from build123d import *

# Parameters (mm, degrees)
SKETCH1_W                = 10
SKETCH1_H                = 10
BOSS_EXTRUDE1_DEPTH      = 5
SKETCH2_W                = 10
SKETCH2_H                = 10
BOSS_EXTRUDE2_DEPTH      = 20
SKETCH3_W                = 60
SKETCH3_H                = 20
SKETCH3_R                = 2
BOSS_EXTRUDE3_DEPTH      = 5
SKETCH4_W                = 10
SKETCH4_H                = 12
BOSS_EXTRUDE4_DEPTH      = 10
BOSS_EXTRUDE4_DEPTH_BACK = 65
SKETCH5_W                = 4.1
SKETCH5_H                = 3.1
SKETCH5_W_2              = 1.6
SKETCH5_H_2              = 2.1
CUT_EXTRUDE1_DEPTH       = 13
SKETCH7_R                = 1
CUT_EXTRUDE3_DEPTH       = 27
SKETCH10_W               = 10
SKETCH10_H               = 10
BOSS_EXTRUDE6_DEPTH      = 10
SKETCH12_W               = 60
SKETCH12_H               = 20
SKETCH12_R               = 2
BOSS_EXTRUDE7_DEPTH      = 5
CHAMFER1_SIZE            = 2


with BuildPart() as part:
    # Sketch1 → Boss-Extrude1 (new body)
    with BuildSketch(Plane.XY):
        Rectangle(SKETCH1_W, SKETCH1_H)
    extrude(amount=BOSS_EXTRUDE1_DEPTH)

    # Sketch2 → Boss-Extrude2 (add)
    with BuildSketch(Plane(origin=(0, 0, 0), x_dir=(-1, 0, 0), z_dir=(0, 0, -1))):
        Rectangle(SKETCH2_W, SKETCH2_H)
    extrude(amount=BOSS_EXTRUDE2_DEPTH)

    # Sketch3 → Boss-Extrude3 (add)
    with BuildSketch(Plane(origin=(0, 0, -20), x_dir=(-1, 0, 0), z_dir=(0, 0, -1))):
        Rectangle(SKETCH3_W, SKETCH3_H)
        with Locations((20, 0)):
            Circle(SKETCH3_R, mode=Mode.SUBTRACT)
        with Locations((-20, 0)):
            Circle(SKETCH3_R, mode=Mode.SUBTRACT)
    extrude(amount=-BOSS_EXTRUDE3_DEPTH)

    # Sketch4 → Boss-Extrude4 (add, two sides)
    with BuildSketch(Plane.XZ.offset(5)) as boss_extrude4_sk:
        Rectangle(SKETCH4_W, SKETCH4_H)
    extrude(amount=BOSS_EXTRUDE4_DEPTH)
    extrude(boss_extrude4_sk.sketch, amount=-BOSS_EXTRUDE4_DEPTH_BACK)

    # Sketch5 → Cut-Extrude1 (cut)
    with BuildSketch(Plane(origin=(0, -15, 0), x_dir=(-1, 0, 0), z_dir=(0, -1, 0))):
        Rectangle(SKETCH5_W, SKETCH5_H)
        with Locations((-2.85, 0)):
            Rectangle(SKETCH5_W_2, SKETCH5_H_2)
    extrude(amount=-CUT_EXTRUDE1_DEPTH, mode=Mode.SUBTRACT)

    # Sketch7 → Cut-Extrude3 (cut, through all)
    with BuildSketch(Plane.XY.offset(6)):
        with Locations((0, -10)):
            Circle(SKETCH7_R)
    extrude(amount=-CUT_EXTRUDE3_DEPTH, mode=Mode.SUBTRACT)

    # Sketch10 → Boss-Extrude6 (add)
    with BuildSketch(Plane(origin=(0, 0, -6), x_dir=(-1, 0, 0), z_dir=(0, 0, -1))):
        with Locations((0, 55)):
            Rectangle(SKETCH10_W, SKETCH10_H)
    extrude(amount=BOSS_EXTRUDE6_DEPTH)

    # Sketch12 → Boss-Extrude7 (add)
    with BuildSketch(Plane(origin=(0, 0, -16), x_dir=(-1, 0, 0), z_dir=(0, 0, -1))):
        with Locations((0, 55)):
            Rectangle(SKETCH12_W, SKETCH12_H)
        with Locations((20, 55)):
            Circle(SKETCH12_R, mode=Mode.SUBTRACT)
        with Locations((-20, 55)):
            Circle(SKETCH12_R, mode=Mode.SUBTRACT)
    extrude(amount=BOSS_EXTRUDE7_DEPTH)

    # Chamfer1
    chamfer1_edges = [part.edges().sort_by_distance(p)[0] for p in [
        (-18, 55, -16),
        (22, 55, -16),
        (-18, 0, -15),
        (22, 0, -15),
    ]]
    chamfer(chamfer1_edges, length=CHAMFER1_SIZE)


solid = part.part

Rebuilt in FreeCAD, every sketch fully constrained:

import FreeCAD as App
import Part
import Sketcher

V = App.Vector
Q = App.Units.Quantity


def edges_at(feature, points):
    """Names of the edges that pass closest to the given points."""
    edges = feature.Shape.Edges
    near = lambda p: min(range(len(edges)), key=lambda i: edges[i].distToShape(Part.Vertex(*p))[0])
    return sorted({f"Edge{near(p) + 1}" for p in points})


def add_polygon(sketch, points):
    """Adds a closed chain of lines whose ends are joined by coincident constraints."""
    first, n = sketch.GeometryCount, len(points)
    for a, b in zip(points, points[1:] + points[:1]):
        sketch.addGeometry(Part.LineSegment(App.Vector(*a, 0), App.Vector(*b, 0)), False)
    for i in range(n):
        sketch.addConstraint(Sketcher.Constraint("Coincident", first + i, 2, first + (i + 1) % n, 1))

doc = App.newDocument("Part")
body = doc.addObject("PartDesign::Body", "Body")

# Sketch on XY plane
sketch1 = body.newObject("Sketcher::SketchObject", "Sketch")
sketch1.AttachmentSupport = (doc.getObject("XY_Plane"), [""])
sketch1.MapMode = "FlatFace"
add_polygon(sketch1, [(-5, 5), (-5, -5), (5, -5), (5, 5)])  # lines 0-3
sketch1.addConstraint(Sketcher.Constraint("Vertical", 0))
sketch1.addConstraint(Sketcher.Constraint("Horizontal", 1))
sketch1.addConstraint(Sketcher.Constraint("Vertical", 2))
sketch1.addConstraint(Sketcher.Constraint("Horizontal", 3))
sketch1.addConstraint(Sketcher.Constraint("Symmetric", 0, 2, 2, 2, -1, 1))
sketch1.addConstraint(Sketcher.Constraint("Equal", 3, 0))
sketch1.addConstraint(Sketcher.Constraint("DistanceX", 1, 1, 1, 2, Q("10 mm")))
pad1 = body.newObject("PartDesign::Pad", "Pad")
pad1.Profile = sketch1
pad1.Length = 5

# Sketch on XY plane
sketch2 = body.newObject("Sketcher::SketchObject", "Sketch001")
sketch2.AttachmentSupport = (doc.getObject("XY_Plane"), [""])
sketch2.MapMode = "FlatFace"
add_polygon(sketch2, [(5, 5), (5, -5), (-5, -5), (-5, 5)])  # lines 0-3
sketch2.addConstraint(Sketcher.Constraint("Vertical", 0))
sketch2.addConstraint(Sketcher.Constraint("Horizontal", 1))
sketch2.addConstraint(Sketcher.Constraint("Vertical", 2))
sketch2.addConstraint(Sketcher.Constraint("Horizontal", 3))
sketch2.addConstraint(Sketcher.Constraint("Symmetric", 0, 2, 2, 2, -1, 1))
sketch2.addConstraint(Sketcher.Constraint("Equal", 3, 0))
sketch2.addConstraint(Sketcher.Constraint("DistanceX", 1, 2, 1, 1, Q("10 mm")))
pad2 = body.newObject("PartDesign::Pad", "Pad001")
pad2.Profile = sketch2
pad2.Length = 20
pad2.Reversed = True

# Sketch on XY plane
sketch3 = body.newObject("Sketcher::SketchObject", "Sketch002")
sketch3.AttachmentSupport = (doc.getObject("XY_Plane"), [""])
sketch3.MapMode = "FlatFace"
sketch3.AttachmentOffset = App.Placement(V(0, 0, -20), App.Rotation())
add_polygon(sketch3, [(30, 10), (30, -10), (-30, -10), (-30, 10)])  # lines 0-3
sketch3.addGeometry(Part.Circle(V(20, 0, 0), V(0, 0, 1), 2), False)  # 4
sketch3.addGeometry(Part.Circle(V(-20, 0, 0), V(0, 0, 1), 2), False)  # 5
sketch3.addConstraint(Sketcher.Constraint("Vertical", 0))
sketch3.addConstraint(Sketcher.Constraint("Horizontal", 1))
sketch3.addConstraint(Sketcher.Constraint("Vertical", 2))
sketch3.addConstraint(Sketcher.Constraint("Horizontal", 3))
sketch3.addConstraint(Sketcher.Constraint("Equal", 4, 5))
sketch3.addConstraint(Sketcher.Constraint("Symmetric", 4, 3, 5, 3, -1, 1))
sketch3.addConstraint(Sketcher.Constraint("Symmetric", 0, 2, 2, 2, -1, 1))
sketch3.addConstraint(Sketcher.Constraint("PointOnObject", 4, 3, -1))
sketch3.addConstraint(Sketcher.Constraint("Diameter", 4, Q("4 mm")))
sketch3.addConstraint(Sketcher.Constraint("DistanceX", 1, 2, 1, 1, Q("60 mm")))
sketch3.addConstraint(Sketcher.Constraint("DistanceY", 0, 2, 0, 1, Q("20 mm")))
sketch3.addConstraint(Sketcher.Constraint("DistanceX", -1, 1, 4, 3, Q("20 mm")))
pad3 = body.newObject("PartDesign::Pad", "Pad002")
pad3.Profile = sketch3
pad3.Length = 5

# Sketch on XZ plane
sketch4 = body.newObject("Sketcher::SketchObject", "Sketch003")
sketch4.AttachmentSupport = (doc.getObject("XZ_Plane"), [""])
sketch4.MapMode = "FlatFace"
sketch4.AttachmentOffset = App.Placement(V(0, 0, 5), App.Rotation())
add_polygon(sketch4, [(-5, 6), (-5, -6), (5, -6), (5, 6)])  # lines 0-3
sketch4.addConstraint(Sketcher.Constraint("Vertical", 0))
sketch4.addConstraint(Sketcher.Constraint("Horizontal", 1))
sketch4.addConstraint(Sketcher.Constraint("Vertical", 2))
sketch4.addConstraint(Sketcher.Constraint("Horizontal", 3))
sketch4.addConstraint(Sketcher.Constraint("Symmetric", 0, 2, 2, 2, -1, 1))
sketch4.addConstraint(Sketcher.Constraint("DistanceX", 1, 1, 1, 2, Q("10 mm")))
sketch4.addConstraint(Sketcher.Constraint("DistanceY", 0, 2, 0, 1, Q("12 mm")))
pad4 = body.newObject("PartDesign::Pad", "Pad003")
pad4.Profile = sketch4
pad4.Type = "TwoLengths"
pad4.Length = 10
pad4.Length2 = 65

# Sketch on XZ plane
sketch5 = body.newObject("Sketcher::SketchObject", "Sketch004")
sketch5.AttachmentSupport = (doc.getObject("XZ_Plane"), [""])
sketch5.MapMode = "FlatFace"
sketch5.AttachmentOffset = App.Placement(V(0, 0, 15), App.Rotation())
add_polygon(sketch5, [(2, 1.1), (2, 1.6), (-2, 1.6), (-2, -1.6), (2, -1.6), (2, -1.1), (3.6, -1.1), (3.6, 1.1)])  # lines 0-7
sketch5.addConstraint(Sketcher.Constraint("Vertical", 0))
sketch5.addConstraint(Sketcher.Constraint("Horizontal", 1))
sketch5.addConstraint(Sketcher.Constraint("Vertical", 2))
sketch5.addConstraint(Sketcher.Constraint("Horizontal", 3))
sketch5.addConstraint(Sketcher.Constraint("Vertical", 4))
sketch5.addConstraint(Sketcher.Constraint("Horizontal", 5))
sketch5.addConstraint(Sketcher.Constraint("Vertical", 6))
sketch5.addConstraint(Sketcher.Constraint("Horizontal", 7))
sketch5.addConstraint(Sketcher.Constraint("Symmetric", 0, 2, 2, 2, -1, 1))
sketch5.addConstraint(Sketcher.Constraint("Symmetric", 4, 2, 7, 2, -1))
sketch5.addConstraint(Sketcher.Constraint("DistanceX", 1, 2, 1, 1, Q("4.1 mm")))
sketch5.addConstraint(Sketcher.Constraint("DistanceX", 5, 1, 5, 2, Q("1.6 mm")))
sketch5.addConstraint(Sketcher.Constraint("DistanceY", 0, 1, 0, 2, Q("0.5 mm")))
sketch5.addConstraint(Sketcher.Constraint("DistanceY", 2, 2, 2, 1, Q("3.1 mm")))
pocket1 = body.newObject("PartDesign::Pocket", "Pocket")
pocket1.Profile = sketch5
pocket1.Length = 13

# Sketch on XY plane
sketch6 = body.newObject("Sketcher::SketchObject", "Sketch005")
sketch6.AttachmentSupport = (doc.getObject("XY_Plane"), [""])
sketch6.MapMode = "FlatFace"
sketch6.AttachmentOffset = App.Placement(V(0, 0, 6), App.Rotation())
sketch6.addGeometry(Part.Circle(V(0, -10, 0), V(0, 0, 1), 1), False)
sketch6.addConstraint(Sketcher.Constraint("PointOnObject", 0, 3, -2))
sketch6.addConstraint(Sketcher.Constraint("Diameter", 0, Q("2 mm")))
sketch6.addConstraint(Sketcher.Constraint("DistanceY", 0, 3, -1, 1, Q("10 mm")))
pocket2 = body.newObject("PartDesign::Pocket", "Pocket001")
pocket2.Profile = sketch6
pocket2.Type = "ThroughAll"

# Sketch on XY plane
sketch7 = body.newObject("Sketcher::SketchObject", "Sketch006")
sketch7.AttachmentSupport = (doc.getObject("XY_Plane"), [""])
sketch7.MapMode = "FlatFace"
sketch7.AttachmentOffset = App.Placement(V(0, 0, -6), App.Rotation())
add_polygon(sketch7, [(5, 60), (5, 50), (-5, 50), (-5, 60)])  # lines 0-3
sketch7.addConstraint(Sketcher.Constraint("Vertical", 0))
sketch7.addConstraint(Sketcher.Constraint("Horizontal", 1))
sketch7.addConstraint(Sketcher.Constraint("Vertical", 2))
sketch7.addConstraint(Sketcher.Constraint("Horizontal", 3))
sketch7.addConstraint(Sketcher.Constraint("Equal", 3, 0))
sketch7.addConstraint(Sketcher.Constraint("DistanceX", 1, 2, 1, 1, Q("10 mm")))
sketch7.addConstraint(Sketcher.Constraint("DistanceX", -1, 1, 0, 2, Q("5 mm")))
sketch7.addConstraint(Sketcher.Constraint("DistanceY", -1, 1, 0, 2, Q("50 mm")))
pad5 = body.newObject("PartDesign::Pad", "Pad004")
pad5.Profile = sketch7
pad5.Length = 10
pad5.Reversed = True

# Sketch on XY plane
sketch8 = body.newObject("Sketcher::SketchObject", "Sketch007")
sketch8.AttachmentSupport = (doc.getObject("XY_Plane"), [""])
sketch8.MapMode = "FlatFace"
sketch8.AttachmentOffset = App.Placement(V(0, 0, -16), App.Rotation())
add_polygon(sketch8, [(30, 65), (30, 45), (-30, 45), (-30, 65)])  # lines 0-3
sketch8.addGeometry(Part.Circle(V(20, 55, 0), V(0, 0, 1), 2), False)  # 4
sketch8.addGeometry(Part.Circle(V(-20, 55, 0), V(0, 0, 1), 2), False)  # 5
sketch8.addConstraint(Sketcher.Constraint("Vertical", 0))
sketch8.addConstraint(Sketcher.Constraint("Horizontal", 1))
sketch8.addConstraint(Sketcher.Constraint("Vertical", 2))
sketch8.addConstraint(Sketcher.Constraint("Horizontal", 3))
sketch8.addConstraint(Sketcher.Constraint("Equal", 4, 5))
sketch8.addConstraint(Sketcher.Constraint("Symmetric", 4, 3, 5, 3, -2))
sketch8.addConstraint(Sketcher.Constraint("Diameter", 4, Q("4 mm")))
sketch8.addConstraint(Sketcher.Constraint("DistanceX", 1, 2, 1, 1, Q("60 mm")))
sketch8.addConstraint(Sketcher.Constraint("DistanceY", 0, 2, 0, 1, Q("20 mm")))
sketch8.addConstraint(Sketcher.Constraint("DistanceX", -1, 1, 4, 3, Q("20 mm")))
sketch8.addConstraint(Sketcher.Constraint("DistanceY", -1, 1, 4, 3, Q("55 mm")))
sketch8.addConstraint(Sketcher.Constraint("DistanceX", -1, 1, 0, 2, Q("30 mm")))
sketch8.addConstraint(Sketcher.Constraint("DistanceY", -1, 1, 0, 2, Q("45 mm")))
pad6 = body.newObject("PartDesign::Pad", "Pad005")
pad6.Profile = sketch8
pad6.Length = 5
pad6.Reversed = True
doc.recompute()

chamfer = body.newObject("PartDesign::Chamfer", "Chamfer")
chamfer.Base = (pad6, edges_at(pad6, [
    (-18, 55, -16),
    (22, 55, -16),
    (-18, 0, -15),
    (22, 0, -15),
]))
chamfer.Size = 2

doc.recompute()
